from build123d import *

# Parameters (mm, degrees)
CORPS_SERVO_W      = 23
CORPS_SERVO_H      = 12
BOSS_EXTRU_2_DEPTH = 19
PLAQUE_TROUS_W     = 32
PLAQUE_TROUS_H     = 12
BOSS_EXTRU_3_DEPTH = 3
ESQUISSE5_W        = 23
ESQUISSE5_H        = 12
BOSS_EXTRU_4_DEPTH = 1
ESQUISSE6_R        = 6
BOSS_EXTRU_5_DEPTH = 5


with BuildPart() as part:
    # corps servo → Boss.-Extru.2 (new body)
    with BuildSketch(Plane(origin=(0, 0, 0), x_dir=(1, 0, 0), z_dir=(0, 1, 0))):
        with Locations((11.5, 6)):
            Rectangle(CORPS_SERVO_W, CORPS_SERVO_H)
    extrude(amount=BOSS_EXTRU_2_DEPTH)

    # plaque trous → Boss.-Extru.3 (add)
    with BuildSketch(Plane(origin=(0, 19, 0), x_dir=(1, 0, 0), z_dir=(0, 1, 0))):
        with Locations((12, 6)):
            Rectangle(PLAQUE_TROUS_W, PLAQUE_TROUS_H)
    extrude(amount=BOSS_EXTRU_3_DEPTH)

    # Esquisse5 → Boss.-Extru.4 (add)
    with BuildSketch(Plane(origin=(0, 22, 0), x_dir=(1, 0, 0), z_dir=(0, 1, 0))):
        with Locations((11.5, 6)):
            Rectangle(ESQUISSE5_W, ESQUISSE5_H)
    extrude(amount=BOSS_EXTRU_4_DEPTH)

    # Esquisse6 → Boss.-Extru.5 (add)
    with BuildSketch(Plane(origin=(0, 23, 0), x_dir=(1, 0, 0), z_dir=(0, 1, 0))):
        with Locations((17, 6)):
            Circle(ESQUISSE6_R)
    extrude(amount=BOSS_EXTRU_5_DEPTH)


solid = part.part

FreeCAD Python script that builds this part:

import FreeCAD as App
import Part
import Sketcher
from FreeCAD import Vector
Q = App.Units.Quantity


def add_polygon(sketch, points):
    """Adds a closed chain of lines whose ends are joined by coincident constraints."""
    first, n = sketch.GeometryCount, len(points)
    for a, b in zip(points, points[1:] + points[:1]):
        sketch.addGeometry(Part.LineSegment(App.Vector(*a, 0), App.Vector(*b, 0)), False)
    for i in range(n):
        sketch.addConstraint(Sketcher.Constraint("Coincident", first + i, 2, first + (i + 1) % n, 1))

doc = App.newDocument("Part")
params = doc.addObject("Spreadsheet::Sheet", "Params")
for row, (alias, value) in enumerate([
    ("sketch1_width", "23 mm"),
    ("sketch1_height", "12 mm"),
    ("pad1_length", "19 mm"),
    ("sketch2_width", "32 mm"),
    ("sketch2_height", "12 mm"),
    ("pad2_length", "3 mm"),
    ("sketch3_width", "23 mm"),
    ("sketch3_height", "12 mm"),
    ("pad3_length", "1 mm"),
    ("sketch4_diameter", "12 mm"),
    ("pad4_length", "5 mm"),
], start=1):
    params.set(f"A{row}", alias)
    params.set(f"B{row}", "=" + value)
    params.setAlias(f"B{row}", alias)

body = doc.addObject("PartDesign::Body", "Body")

# Sketch on XZ plane
sketch1 = body.newObject("Sketcher::SketchObject", "Sketch")
sketch1.AttachmentSupport = (doc.getObject("XZ_Plane"), [""])
sketch1.MapMode = "FlatFace"
add_polygon(sketch1, [(0, -12), (0, 0), (23, 0), (23, -12)])  # lines 0-3
sketch1.addConstraint(Sketcher.Constraint("Vertical", 0))
sketch1.addConstraint(Sketcher.Constraint("Horizontal", 1))
sketch1.addConstraint(Sketcher.Constraint("Vertical", 2))
sketch1.addConstraint(Sketcher.Constraint("Horizontal", 3))
sketch1.addConstraint(Sketcher.Constraint("Coincident", 0, 2, -1, 1))
sketch1.addConstraint(Sketcher.Constraint("DistanceX", 1, 1, 1, 2, Q("23 mm")))
sketch1.addConstraint(Sketcher.Constraint("DistanceY", 0, 1, 0, 2, Q("12 mm")))
sketch1.setExpression("Constraints[9]", "Params.sketch1_width")
sketch1.setExpression("Constraints[10]", "Params.sketch1_height")
pad1 = body.newObject("PartDesign::Pad", "Pad")
pad1.Profile = sketch1
pad1.setExpression("Length", "Params.pad1_length")
pad1.Reversed = True

# Sketch on XZ plane
sketch2 = body.newObject("Sketcher::SketchObject", "Sketch001")
sketch2.AttachmentSupport = (doc.getObject("XZ_Plane"), [""])
sketch2.MapMode = "FlatFace"
sketch2.AttachmentOffset = App.Placement(Vector(0, 0, -19), App.Rotation())
add_polygon(sketch2, [(-4, -12), (-4, 0), (28, 0), (28, -12)])  # lines 0-3
sketch2.addConstraint(Sketcher.Constraint("Vertical", 0))
sketch2.addConstraint(Sketcher.Constraint("Horizontal", 1))
sketch2.addConstraint(Sketcher.Constraint("Vertical", 2))
sketch2.addConstraint(Sketcher.Constraint("Horizontal", 3))
sketch2.addConstraint(Sketcher.Constraint("PointOnObject", 0, 2, -1))
sketch2.addConstraint(Sketcher.Constraint("DistanceX", 1, 1, 1, 2, Q("32 mm")))
sketch2.addConstraint(Sketcher.Constraint("DistanceY", 0, 1, 0, 2, Q("12 mm")))
sketch2.addConstraint(Sketcher.Constraint("DistanceX", 0, 2, -1, 1, Q("4 mm")))
sketch2.setExpression("Constraints[9]", "Params.sketch2_width")
sketch2.setExpression("Constraints[10]", "Params.sketch2_height")
pad2 = body.newObject("PartDesign::Pad", "Pad001")
pad2.Profile = sketch2
pad2.setExpression("Length", "Params.pad2_length")
pad2.Reversed = True

# Sketch on XZ plane
sketch3 = body.newObject("Sketcher::SketchObject", "Sketch002")
sketch3.AttachmentSupport = (doc.getObject("XZ_Plane"), [""])
sketch3.MapMode = "FlatFace"
sketch3.AttachmentOffset = App.Placement(Vector(0, 0, -22), App.Rotation())
add_polygon(sketch3, [(0, -12), (0, 0), (23, 0), (23, -12)])  # lines 0-3
sketch3.addConstraint(Sketcher.Constraint("Vertical", 0))
sketch3.addConstraint(Sketcher.Constraint("Horizontal", 1))
sketch3.addConstraint(Sketcher.Constraint("Vertical", 2))
sketch3.addConstraint(Sketcher.Constraint("Horizontal", 3))
sketch3.addConstraint(Sketcher.Constraint("Coincident", 0, 2, -1, 1))
sketch3.addConstraint(Sketcher.Constraint("DistanceX", 1, 1, 1, 2, Q("23 mm")))
sketch3.addConstraint(Sketcher.Constraint("DistanceY", 0, 1, 0, 2, Q("12 mm")))
sketch3.setExpression("Constraints[9]", "Params.sketch3_width")
sketch3.setExpression("Constraints[10]", "Params.sketch3_height")
pad3 = body.newObject("PartDesign::Pad", "Pad002")
pad3.Profile = sketch3
pad3.setExpression("Length", "Params.pad3_length")
pad3.Reversed = True

# Sketch on XZ plane
sketch4 = body.newObject("Sketcher::SketchObject", "Sketch003")
sketch4.AttachmentSupport = (doc.getObject("XZ_Plane"), [""])
sketch4.MapMode = "FlatFace"
sketch4.AttachmentOffset = App.Placement(Vector(0, 0, -23), App.Rotation())
sketch4.addGeometry(Part.Circle(Vector(17, -6, 0), Vector(0, 0, 1), 6), False)
sketch4.addConstraint(Sketcher.Constraint("Diameter", 0, Q("12 mm")))
sketch4.addConstraint(Sketcher.Constraint("DistanceX", -1, 1, 0, 3, Q("17 mm")))
sketch4.addConstraint(Sketcher.Constraint("DistanceY", 0, 3, -1, 1, Q("6 mm")))
sketch4.setExpression("Constraints[0]", "Params.sketch4_diameter")
pad4 = body.newObject("PartDesign::Pad", "Pad003")
pad4.Profile = sketch4
pad4.setExpression("Length", "Params.pad4_length")
pad4.Reversed = True

doc.recompute()
